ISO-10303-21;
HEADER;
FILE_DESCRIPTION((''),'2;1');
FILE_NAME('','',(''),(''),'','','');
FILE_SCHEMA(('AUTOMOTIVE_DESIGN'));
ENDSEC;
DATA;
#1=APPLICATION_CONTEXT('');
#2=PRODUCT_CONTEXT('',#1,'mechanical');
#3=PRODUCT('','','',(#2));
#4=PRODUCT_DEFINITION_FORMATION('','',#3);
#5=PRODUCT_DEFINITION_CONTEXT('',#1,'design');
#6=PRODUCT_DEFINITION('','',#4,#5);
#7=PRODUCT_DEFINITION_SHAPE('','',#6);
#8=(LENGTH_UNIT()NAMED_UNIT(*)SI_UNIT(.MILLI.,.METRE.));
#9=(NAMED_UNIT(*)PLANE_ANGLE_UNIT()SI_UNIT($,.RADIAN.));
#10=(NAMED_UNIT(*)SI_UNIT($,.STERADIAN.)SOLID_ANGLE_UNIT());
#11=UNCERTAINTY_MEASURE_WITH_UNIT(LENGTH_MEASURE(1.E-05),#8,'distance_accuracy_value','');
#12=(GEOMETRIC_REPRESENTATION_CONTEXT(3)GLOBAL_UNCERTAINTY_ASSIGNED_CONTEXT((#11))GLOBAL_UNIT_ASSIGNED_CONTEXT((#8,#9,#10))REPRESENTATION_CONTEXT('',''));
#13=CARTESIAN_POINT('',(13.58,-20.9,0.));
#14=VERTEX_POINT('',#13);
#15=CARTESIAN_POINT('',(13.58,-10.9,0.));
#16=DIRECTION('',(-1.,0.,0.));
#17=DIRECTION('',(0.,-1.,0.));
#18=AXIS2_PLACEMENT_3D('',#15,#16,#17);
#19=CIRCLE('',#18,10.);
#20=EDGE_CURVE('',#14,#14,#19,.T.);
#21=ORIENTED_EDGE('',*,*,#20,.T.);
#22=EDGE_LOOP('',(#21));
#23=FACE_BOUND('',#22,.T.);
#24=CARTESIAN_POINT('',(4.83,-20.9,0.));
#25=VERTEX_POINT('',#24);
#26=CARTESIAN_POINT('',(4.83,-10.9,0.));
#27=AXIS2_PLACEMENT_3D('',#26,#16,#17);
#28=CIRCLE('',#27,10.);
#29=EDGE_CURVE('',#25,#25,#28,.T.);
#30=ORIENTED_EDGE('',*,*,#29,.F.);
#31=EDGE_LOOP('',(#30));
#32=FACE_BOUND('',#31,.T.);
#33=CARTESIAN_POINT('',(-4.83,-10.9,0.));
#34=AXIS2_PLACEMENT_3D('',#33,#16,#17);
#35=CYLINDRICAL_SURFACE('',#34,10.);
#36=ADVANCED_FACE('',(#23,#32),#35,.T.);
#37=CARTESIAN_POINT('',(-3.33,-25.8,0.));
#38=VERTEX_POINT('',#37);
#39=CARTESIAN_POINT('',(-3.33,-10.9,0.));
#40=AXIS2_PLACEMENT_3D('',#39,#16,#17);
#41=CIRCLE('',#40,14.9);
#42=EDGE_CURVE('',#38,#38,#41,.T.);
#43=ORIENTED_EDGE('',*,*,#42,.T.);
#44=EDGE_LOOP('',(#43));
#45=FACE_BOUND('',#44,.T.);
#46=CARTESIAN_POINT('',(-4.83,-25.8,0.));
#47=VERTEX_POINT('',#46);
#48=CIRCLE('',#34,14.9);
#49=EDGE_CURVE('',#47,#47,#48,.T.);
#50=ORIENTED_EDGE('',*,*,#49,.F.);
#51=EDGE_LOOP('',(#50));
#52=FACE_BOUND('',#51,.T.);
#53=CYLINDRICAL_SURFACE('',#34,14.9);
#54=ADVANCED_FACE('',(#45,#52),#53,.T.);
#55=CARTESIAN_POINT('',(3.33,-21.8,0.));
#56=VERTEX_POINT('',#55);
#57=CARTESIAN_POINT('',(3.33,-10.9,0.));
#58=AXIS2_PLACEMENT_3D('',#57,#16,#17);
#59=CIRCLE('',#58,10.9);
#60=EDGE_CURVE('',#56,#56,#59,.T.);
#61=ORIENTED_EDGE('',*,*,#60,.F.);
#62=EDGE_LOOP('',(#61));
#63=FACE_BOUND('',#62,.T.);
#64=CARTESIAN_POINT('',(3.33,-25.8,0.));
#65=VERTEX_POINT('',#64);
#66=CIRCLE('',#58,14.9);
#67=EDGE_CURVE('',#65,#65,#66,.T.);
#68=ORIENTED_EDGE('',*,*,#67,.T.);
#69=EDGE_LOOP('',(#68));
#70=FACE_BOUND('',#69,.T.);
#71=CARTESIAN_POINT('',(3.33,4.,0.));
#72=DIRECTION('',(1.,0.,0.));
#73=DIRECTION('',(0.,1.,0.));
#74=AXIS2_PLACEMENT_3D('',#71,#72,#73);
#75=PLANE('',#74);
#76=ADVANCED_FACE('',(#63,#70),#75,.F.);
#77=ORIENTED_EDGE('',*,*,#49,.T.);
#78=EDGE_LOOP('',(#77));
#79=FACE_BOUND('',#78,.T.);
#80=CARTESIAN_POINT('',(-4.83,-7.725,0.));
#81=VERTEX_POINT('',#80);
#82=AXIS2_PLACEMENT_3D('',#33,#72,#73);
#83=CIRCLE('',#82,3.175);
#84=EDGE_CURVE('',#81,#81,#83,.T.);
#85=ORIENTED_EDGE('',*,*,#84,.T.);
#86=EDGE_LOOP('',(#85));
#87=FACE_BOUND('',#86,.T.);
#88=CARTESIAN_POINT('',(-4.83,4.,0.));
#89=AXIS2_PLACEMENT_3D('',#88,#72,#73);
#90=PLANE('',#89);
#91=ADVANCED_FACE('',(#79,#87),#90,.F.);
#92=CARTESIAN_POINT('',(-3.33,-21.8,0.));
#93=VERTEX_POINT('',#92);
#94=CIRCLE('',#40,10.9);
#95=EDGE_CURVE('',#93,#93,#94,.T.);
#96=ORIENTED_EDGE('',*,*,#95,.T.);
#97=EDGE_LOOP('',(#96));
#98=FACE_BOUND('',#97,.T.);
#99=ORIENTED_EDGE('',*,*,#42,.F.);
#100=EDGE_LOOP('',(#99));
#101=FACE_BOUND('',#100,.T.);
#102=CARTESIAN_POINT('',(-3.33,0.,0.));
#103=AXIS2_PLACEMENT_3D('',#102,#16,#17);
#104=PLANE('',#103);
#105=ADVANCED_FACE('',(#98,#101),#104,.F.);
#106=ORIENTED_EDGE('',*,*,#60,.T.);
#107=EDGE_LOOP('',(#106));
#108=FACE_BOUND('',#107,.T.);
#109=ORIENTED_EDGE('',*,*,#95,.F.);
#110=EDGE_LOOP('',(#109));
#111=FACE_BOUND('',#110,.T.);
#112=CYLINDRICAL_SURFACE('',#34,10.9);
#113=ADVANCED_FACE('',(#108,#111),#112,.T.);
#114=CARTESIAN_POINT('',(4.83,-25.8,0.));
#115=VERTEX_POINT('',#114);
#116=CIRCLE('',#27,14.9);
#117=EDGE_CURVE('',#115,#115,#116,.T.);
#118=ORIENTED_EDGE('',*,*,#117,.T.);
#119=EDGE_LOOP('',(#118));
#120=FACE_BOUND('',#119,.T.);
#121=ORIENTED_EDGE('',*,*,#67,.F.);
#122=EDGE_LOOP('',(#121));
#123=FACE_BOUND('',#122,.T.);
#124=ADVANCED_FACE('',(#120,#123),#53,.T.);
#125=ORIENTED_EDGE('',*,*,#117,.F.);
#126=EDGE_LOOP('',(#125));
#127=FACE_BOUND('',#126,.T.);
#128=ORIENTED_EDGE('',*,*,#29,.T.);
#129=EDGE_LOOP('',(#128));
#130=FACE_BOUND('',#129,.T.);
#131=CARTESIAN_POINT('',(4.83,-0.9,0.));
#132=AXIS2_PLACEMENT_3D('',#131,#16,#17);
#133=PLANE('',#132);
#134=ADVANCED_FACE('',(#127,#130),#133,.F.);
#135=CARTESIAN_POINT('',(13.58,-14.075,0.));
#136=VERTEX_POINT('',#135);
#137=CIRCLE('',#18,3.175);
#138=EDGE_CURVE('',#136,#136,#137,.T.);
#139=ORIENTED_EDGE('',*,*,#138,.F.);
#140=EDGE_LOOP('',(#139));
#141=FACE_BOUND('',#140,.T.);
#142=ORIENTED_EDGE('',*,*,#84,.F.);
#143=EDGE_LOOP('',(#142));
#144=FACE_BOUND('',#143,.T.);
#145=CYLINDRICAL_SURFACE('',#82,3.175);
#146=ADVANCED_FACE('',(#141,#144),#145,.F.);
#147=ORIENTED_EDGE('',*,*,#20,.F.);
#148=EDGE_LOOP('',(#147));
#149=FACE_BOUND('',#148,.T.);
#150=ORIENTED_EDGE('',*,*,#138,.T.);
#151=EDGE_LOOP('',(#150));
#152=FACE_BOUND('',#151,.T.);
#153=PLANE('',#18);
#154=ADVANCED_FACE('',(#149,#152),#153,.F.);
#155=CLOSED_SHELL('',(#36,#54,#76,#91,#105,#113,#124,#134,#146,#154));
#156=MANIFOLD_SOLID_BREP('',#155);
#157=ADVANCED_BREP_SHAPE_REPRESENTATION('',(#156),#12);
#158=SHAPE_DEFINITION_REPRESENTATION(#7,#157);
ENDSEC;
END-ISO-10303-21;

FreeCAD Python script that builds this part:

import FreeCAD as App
import Part
import Sketcher
from FreeCAD import Vector

doc = App.newDocument("Part")
params = doc.addObject("Spreadsheet::Sheet", "Params")
for row, (alias, value) in enumerate([
    ("sketch1_height", "4 mm"),
    ("sketch1_height2", "10 mm"),
    ("sketch1_width", "1.5 mm"),
    ("sketch1_height3", "14.9 mm"),
    ("sketch1_width2", "6.66 mm"),
    ("revolution_angle", "360 deg"),
    ("sketch2_diameter", "6.35 mm"),
], start=1):
    params.set(f"A{row}", alias)
    params.set(f"B{row}", "=" + value)
    params.setAlias(f"B{row}", alias)

body = doc.addObject("PartDesign::Body", "Body")

# Sketch on XY plane
sketch1 = body.newObject("Sketcher::SketchObject", "Sketch")
sketch1.AttachmentSupport = (doc.getObject("XY_Plane"), [""])
sketch1.MapMode = "FlatFace"
sketch1.addGeometry([
    Part.LineSegment(Vector(3.33, 0, 0), Vector(-3.33, 0, 0)),  # 0
    Part.LineSegment(Vector(-3.33, 0, 0), Vector(-3.33, 4, 0)),  # 1
    Part.LineSegment(Vector(-3.33, 4, 0), Vector(-4.83, 4, 0)),  # 2
    Part.LineSegment(Vector(-4.83, 4, 0), Vector(-4.83, -10.9, 0)),  # 3
    Part.LineSegment(Vector(-4.83, -10.9, 0), Vector(13.58, -10.9, 0)),  # 4
    Part.LineSegment(Vector(13.58, -10.9, 0), Vector(13.58, -0.9, 0)),  # 5
    Part.LineSegment(Vector(13.58, -0.9, 0), Vector(4.83, -0.9, 0)),  # 6
    Part.LineSegment(Vector(4.83, -0.9, 0), Vector(4.83, 4, 0)),  # 7
    Part.LineSegment(Vector(4.83, 4, 0), Vector(3.33, 4, 0)),  # 8
    Part.LineSegment(Vector(3.33, 4, 0), Vector(3.33, 0, 0)),  # 9
], False)
sketch1.addGeometry(Part.LineSegment(Vector(-4.83, -10.9, 0), Vector(13.58, -10.9, 0)), True)  # axis
sketch1.addConstraint([
    Sketcher.Constraint("Coincident", 0, 2, 1, 1),
    Sketcher.Constraint("Coincident", 1, 2, 2, 1),
    Sketcher.Constraint("Coincident", 2, 2, 3, 1),
    Sketcher.Constraint("Coincident", 3, 2, 4, 1),
    Sketcher.Constraint("Coincident", 4, 2, 5, 1),
    Sketcher.Constraint("Coincident", 5, 2, 6, 1),
    Sketcher.Constraint("Coincident", 6, 2, 7, 1),
    Sketcher.Constraint("Coincident", 7, 2, 8, 1),
    Sketcher.Constraint("Coincident", 8, 2, 9, 1),
    Sketcher.Constraint("Coincident", 9, 2, 0, 1),
    Sketcher.Constraint("Horizontal", 0),
    Sketcher.Constraint("Vertical", 1),
    Sketcher.Constraint("Horizontal", 2),
    Sketcher.Constraint("Vertical", 3),
    Sketcher.Constraint("Horizontal", 4),
    Sketcher.Constraint("Vertical", 5),
    Sketcher.Constraint("Horizontal", 6),
    Sketcher.Constraint("Vertical", 7),
    Sketcher.Constraint("Horizontal", 8),
    Sketcher.Constraint("Vertical", 9),
    Sketcher.Constraint("Horizontal", 10),
    Sketcher.Constraint("Coincident", 10, 1, 3, 2),
    Sketcher.Constraint("Symmetric", 0, 2, 9, 2, -1, 1),
    Sketcher.Constraint("Symmetric", 2, 2, 7, 2, -2),
    Sketcher.Constraint("Vertical", 5, 2, 10, 2),
    Sketcher.Constraint("DistanceY", 1, 1, 1, 2, 4.0),
    Sketcher.Constraint("DistanceY", 5, 1, 5, 2, 10.0),
    Sketcher.Constraint("DistanceX", 2, 2, 2, 1, 1.5),
    Sketcher.Constraint("DistanceY", 3, 2, 3, 1, 14.9),
    Sketcher.Constraint("DistanceX", 0, 2, 0, 1, 6.66),
    Sketcher.Constraint("DistanceX", 4, 1, 4, 2, 18.41),
])
sketch1.setExpression("Constraints[25]", "Params.sketch1_height")
sketch1.setExpression("Constraints[26]", "Params.sketch1_height2")
sketch1.setExpression("Constraints[27]", "Params.sketch1_width")
sketch1.setExpression("Constraints[28]", "Params.sketch1_height3")
sketch1.setExpression("Constraints[29]", "Params.sketch1_width2")
revolution = body.newObject("PartDesign::Revolution", "Revolution")
revolution.Profile = sketch1
revolution.ReferenceAxis = (sketch1, ["Axis0"])
revolution.setExpression("Angle", "Params.revolution_angle")

# Sketch on YZ plane
sketch2 = body.newObject("Sketcher::SketchObject", "Sketch001")
sketch2.AttachmentSupport = (doc.getObject("YZ_Plane"), [""])
sketch2.MapMode = "FlatFace"
sketch2.AttachmentOffset = App.Placement(Vector(0, 0, 13.58), App.Rotation())
sketch2.addGeometry(Part.Circle(Vector(-10.9, 0, 0), Vector(0, 0, 1), 3.175), False)
sketch2.addConstraint([
    Sketcher.Constraint("PointOnObject", 0, 3, -1),
    Sketcher.Constraint("Diameter", 0, 6.35),
    Sketcher.Constraint("DistanceX", 0, 3, -1, 1, 10.9),
])
sketch2.setExpression("Constraints[1]", "Params.sketch2_diameter")
pocket1 = body.newObject("PartDesign::Pocket", "Pocket")
pocket1.Profile = sketch2
pocket1.Type = "ThroughAll"
pocket1.Midplane = True

doc.recompute()
